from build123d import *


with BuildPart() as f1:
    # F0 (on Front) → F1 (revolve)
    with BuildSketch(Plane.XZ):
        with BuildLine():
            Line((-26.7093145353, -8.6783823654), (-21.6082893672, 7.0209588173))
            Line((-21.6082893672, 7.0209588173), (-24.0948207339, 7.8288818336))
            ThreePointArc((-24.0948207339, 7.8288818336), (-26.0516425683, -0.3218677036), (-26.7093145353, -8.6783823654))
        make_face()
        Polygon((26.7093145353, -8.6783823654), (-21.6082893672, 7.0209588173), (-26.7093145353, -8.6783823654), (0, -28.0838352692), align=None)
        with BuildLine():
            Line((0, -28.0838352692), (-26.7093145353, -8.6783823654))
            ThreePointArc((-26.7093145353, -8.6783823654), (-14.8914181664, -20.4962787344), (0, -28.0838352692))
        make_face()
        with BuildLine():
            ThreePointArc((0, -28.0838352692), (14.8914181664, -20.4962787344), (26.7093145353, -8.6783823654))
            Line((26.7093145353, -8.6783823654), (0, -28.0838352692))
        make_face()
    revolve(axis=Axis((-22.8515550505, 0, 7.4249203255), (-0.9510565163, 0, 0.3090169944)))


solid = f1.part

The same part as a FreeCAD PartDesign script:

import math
import FreeCAD as App
import Part
import Sketcher

V = App.Vector
Q = App.Units.Quantity

doc = App.newDocument("Part")
params = doc.addObject("Spreadsheet::Sheet", "Params")
for row, (alias, value) in enumerate([
    ("revolution_angle", "360 deg"),
], start=1):
    params.set(f"A{row}", alias)
    params.set(f"B{row}", "=" + value)
    params.setAlias(f"B{row}", alias)

body = doc.addObject("PartDesign::Body", "Body")

# Sketch on XZ plane
sketch1 = doc.addObject("Sketcher::SketchObject", "Sketch")
body.addObject(sketch1)
sketch1.AttachmentSupport = (doc.XZ_Plane, [""])
sketch1.MapMode = "FlatFace"
sketch1.addGeometry([
    Part.LineSegment(V(-21.6, 7, 0), V(-24.1, 7.8, 0)),  # 0
    Part.ArcOfCircle(Part.Circle(V(26.7, -8.7, 0), V(0, 0, 1), 53.4), math.radians(162), math.radians(180)),  # 1
    Part.ArcOfCircle(Part.Circle(V(16.5, 22.7, 0), V(0, 0, 1), 53.4), math.radians(-144), math.radians(-108)),  # 2
    Part.ArcOfCircle(Part.Circle(V(-16.5, 22.7, 0), V(0, 0, 1), 53.4), math.radians(-72), math.radians(-36)),  # 3
    Part.LineSegment(V(26.7, -8.7, 0), V(-21.6, 7, 0)),  # 4
], False)
sketch1.addGeometry(Part.LineSegment(V(26.7, -8.7, 0), V(-24.1, 7.8, 0)), True)  # axis
sketch1.addConstraint([
    Sketcher.Constraint("Coincident", 0, 2, 1, 1),
    Sketcher.Constraint("Coincident", 1, 2, 2, 1),
    Sketcher.Constraint("Coincident", 2, 2, 3, 1),
    Sketcher.Constraint("Coincident", 3, 2, 4, 1),
    Sketcher.Constraint("Coincident", 4, 2, 0, 1),
    Sketcher.Constraint("Coincident", 3, 2, 1, 3),
    Sketcher.Constraint("Coincident", 5, 1, 1, 3),
    Sketcher.Constraint("Coincident", 5, 2, 0, 2),
    Sketcher.Constraint("Equal", 1, 2),
    Sketcher.Constraint("Equal", 2, 3),
    Sketcher.Constraint("Symmetric", 2, 3, 3, 3, -2),
    Sketcher.Constraint("Parallel", 0, 4),
    Sketcher.Constraint("Horizontal", 1, 2, 3, 2),
    Sketcher.Constraint("Angle", 0, Q("162 deg")),
    Sketcher.Constraint("Radius", 1, 53.418629),
    Sketcher.Constraint("DistanceY", -1, 1, 2, 3, 22.7203),
    Sketcher.Constraint("DistanceY", -1, 1, 0, 2, 7.828882),
    Sketcher.Constraint("DistanceX", 4, 2, -1, 1, 21.608289),
])
revolution = doc.addObject("PartDesign::Revolution", "Revolution")
body.addObject(revolution)
revolution.Profile = sketch1
revolution.ReferenceAxis = (sketch1, ["Axis0"])
revolution.setExpression("Angle", "Params.revolution_angle")

doc.recompute()
